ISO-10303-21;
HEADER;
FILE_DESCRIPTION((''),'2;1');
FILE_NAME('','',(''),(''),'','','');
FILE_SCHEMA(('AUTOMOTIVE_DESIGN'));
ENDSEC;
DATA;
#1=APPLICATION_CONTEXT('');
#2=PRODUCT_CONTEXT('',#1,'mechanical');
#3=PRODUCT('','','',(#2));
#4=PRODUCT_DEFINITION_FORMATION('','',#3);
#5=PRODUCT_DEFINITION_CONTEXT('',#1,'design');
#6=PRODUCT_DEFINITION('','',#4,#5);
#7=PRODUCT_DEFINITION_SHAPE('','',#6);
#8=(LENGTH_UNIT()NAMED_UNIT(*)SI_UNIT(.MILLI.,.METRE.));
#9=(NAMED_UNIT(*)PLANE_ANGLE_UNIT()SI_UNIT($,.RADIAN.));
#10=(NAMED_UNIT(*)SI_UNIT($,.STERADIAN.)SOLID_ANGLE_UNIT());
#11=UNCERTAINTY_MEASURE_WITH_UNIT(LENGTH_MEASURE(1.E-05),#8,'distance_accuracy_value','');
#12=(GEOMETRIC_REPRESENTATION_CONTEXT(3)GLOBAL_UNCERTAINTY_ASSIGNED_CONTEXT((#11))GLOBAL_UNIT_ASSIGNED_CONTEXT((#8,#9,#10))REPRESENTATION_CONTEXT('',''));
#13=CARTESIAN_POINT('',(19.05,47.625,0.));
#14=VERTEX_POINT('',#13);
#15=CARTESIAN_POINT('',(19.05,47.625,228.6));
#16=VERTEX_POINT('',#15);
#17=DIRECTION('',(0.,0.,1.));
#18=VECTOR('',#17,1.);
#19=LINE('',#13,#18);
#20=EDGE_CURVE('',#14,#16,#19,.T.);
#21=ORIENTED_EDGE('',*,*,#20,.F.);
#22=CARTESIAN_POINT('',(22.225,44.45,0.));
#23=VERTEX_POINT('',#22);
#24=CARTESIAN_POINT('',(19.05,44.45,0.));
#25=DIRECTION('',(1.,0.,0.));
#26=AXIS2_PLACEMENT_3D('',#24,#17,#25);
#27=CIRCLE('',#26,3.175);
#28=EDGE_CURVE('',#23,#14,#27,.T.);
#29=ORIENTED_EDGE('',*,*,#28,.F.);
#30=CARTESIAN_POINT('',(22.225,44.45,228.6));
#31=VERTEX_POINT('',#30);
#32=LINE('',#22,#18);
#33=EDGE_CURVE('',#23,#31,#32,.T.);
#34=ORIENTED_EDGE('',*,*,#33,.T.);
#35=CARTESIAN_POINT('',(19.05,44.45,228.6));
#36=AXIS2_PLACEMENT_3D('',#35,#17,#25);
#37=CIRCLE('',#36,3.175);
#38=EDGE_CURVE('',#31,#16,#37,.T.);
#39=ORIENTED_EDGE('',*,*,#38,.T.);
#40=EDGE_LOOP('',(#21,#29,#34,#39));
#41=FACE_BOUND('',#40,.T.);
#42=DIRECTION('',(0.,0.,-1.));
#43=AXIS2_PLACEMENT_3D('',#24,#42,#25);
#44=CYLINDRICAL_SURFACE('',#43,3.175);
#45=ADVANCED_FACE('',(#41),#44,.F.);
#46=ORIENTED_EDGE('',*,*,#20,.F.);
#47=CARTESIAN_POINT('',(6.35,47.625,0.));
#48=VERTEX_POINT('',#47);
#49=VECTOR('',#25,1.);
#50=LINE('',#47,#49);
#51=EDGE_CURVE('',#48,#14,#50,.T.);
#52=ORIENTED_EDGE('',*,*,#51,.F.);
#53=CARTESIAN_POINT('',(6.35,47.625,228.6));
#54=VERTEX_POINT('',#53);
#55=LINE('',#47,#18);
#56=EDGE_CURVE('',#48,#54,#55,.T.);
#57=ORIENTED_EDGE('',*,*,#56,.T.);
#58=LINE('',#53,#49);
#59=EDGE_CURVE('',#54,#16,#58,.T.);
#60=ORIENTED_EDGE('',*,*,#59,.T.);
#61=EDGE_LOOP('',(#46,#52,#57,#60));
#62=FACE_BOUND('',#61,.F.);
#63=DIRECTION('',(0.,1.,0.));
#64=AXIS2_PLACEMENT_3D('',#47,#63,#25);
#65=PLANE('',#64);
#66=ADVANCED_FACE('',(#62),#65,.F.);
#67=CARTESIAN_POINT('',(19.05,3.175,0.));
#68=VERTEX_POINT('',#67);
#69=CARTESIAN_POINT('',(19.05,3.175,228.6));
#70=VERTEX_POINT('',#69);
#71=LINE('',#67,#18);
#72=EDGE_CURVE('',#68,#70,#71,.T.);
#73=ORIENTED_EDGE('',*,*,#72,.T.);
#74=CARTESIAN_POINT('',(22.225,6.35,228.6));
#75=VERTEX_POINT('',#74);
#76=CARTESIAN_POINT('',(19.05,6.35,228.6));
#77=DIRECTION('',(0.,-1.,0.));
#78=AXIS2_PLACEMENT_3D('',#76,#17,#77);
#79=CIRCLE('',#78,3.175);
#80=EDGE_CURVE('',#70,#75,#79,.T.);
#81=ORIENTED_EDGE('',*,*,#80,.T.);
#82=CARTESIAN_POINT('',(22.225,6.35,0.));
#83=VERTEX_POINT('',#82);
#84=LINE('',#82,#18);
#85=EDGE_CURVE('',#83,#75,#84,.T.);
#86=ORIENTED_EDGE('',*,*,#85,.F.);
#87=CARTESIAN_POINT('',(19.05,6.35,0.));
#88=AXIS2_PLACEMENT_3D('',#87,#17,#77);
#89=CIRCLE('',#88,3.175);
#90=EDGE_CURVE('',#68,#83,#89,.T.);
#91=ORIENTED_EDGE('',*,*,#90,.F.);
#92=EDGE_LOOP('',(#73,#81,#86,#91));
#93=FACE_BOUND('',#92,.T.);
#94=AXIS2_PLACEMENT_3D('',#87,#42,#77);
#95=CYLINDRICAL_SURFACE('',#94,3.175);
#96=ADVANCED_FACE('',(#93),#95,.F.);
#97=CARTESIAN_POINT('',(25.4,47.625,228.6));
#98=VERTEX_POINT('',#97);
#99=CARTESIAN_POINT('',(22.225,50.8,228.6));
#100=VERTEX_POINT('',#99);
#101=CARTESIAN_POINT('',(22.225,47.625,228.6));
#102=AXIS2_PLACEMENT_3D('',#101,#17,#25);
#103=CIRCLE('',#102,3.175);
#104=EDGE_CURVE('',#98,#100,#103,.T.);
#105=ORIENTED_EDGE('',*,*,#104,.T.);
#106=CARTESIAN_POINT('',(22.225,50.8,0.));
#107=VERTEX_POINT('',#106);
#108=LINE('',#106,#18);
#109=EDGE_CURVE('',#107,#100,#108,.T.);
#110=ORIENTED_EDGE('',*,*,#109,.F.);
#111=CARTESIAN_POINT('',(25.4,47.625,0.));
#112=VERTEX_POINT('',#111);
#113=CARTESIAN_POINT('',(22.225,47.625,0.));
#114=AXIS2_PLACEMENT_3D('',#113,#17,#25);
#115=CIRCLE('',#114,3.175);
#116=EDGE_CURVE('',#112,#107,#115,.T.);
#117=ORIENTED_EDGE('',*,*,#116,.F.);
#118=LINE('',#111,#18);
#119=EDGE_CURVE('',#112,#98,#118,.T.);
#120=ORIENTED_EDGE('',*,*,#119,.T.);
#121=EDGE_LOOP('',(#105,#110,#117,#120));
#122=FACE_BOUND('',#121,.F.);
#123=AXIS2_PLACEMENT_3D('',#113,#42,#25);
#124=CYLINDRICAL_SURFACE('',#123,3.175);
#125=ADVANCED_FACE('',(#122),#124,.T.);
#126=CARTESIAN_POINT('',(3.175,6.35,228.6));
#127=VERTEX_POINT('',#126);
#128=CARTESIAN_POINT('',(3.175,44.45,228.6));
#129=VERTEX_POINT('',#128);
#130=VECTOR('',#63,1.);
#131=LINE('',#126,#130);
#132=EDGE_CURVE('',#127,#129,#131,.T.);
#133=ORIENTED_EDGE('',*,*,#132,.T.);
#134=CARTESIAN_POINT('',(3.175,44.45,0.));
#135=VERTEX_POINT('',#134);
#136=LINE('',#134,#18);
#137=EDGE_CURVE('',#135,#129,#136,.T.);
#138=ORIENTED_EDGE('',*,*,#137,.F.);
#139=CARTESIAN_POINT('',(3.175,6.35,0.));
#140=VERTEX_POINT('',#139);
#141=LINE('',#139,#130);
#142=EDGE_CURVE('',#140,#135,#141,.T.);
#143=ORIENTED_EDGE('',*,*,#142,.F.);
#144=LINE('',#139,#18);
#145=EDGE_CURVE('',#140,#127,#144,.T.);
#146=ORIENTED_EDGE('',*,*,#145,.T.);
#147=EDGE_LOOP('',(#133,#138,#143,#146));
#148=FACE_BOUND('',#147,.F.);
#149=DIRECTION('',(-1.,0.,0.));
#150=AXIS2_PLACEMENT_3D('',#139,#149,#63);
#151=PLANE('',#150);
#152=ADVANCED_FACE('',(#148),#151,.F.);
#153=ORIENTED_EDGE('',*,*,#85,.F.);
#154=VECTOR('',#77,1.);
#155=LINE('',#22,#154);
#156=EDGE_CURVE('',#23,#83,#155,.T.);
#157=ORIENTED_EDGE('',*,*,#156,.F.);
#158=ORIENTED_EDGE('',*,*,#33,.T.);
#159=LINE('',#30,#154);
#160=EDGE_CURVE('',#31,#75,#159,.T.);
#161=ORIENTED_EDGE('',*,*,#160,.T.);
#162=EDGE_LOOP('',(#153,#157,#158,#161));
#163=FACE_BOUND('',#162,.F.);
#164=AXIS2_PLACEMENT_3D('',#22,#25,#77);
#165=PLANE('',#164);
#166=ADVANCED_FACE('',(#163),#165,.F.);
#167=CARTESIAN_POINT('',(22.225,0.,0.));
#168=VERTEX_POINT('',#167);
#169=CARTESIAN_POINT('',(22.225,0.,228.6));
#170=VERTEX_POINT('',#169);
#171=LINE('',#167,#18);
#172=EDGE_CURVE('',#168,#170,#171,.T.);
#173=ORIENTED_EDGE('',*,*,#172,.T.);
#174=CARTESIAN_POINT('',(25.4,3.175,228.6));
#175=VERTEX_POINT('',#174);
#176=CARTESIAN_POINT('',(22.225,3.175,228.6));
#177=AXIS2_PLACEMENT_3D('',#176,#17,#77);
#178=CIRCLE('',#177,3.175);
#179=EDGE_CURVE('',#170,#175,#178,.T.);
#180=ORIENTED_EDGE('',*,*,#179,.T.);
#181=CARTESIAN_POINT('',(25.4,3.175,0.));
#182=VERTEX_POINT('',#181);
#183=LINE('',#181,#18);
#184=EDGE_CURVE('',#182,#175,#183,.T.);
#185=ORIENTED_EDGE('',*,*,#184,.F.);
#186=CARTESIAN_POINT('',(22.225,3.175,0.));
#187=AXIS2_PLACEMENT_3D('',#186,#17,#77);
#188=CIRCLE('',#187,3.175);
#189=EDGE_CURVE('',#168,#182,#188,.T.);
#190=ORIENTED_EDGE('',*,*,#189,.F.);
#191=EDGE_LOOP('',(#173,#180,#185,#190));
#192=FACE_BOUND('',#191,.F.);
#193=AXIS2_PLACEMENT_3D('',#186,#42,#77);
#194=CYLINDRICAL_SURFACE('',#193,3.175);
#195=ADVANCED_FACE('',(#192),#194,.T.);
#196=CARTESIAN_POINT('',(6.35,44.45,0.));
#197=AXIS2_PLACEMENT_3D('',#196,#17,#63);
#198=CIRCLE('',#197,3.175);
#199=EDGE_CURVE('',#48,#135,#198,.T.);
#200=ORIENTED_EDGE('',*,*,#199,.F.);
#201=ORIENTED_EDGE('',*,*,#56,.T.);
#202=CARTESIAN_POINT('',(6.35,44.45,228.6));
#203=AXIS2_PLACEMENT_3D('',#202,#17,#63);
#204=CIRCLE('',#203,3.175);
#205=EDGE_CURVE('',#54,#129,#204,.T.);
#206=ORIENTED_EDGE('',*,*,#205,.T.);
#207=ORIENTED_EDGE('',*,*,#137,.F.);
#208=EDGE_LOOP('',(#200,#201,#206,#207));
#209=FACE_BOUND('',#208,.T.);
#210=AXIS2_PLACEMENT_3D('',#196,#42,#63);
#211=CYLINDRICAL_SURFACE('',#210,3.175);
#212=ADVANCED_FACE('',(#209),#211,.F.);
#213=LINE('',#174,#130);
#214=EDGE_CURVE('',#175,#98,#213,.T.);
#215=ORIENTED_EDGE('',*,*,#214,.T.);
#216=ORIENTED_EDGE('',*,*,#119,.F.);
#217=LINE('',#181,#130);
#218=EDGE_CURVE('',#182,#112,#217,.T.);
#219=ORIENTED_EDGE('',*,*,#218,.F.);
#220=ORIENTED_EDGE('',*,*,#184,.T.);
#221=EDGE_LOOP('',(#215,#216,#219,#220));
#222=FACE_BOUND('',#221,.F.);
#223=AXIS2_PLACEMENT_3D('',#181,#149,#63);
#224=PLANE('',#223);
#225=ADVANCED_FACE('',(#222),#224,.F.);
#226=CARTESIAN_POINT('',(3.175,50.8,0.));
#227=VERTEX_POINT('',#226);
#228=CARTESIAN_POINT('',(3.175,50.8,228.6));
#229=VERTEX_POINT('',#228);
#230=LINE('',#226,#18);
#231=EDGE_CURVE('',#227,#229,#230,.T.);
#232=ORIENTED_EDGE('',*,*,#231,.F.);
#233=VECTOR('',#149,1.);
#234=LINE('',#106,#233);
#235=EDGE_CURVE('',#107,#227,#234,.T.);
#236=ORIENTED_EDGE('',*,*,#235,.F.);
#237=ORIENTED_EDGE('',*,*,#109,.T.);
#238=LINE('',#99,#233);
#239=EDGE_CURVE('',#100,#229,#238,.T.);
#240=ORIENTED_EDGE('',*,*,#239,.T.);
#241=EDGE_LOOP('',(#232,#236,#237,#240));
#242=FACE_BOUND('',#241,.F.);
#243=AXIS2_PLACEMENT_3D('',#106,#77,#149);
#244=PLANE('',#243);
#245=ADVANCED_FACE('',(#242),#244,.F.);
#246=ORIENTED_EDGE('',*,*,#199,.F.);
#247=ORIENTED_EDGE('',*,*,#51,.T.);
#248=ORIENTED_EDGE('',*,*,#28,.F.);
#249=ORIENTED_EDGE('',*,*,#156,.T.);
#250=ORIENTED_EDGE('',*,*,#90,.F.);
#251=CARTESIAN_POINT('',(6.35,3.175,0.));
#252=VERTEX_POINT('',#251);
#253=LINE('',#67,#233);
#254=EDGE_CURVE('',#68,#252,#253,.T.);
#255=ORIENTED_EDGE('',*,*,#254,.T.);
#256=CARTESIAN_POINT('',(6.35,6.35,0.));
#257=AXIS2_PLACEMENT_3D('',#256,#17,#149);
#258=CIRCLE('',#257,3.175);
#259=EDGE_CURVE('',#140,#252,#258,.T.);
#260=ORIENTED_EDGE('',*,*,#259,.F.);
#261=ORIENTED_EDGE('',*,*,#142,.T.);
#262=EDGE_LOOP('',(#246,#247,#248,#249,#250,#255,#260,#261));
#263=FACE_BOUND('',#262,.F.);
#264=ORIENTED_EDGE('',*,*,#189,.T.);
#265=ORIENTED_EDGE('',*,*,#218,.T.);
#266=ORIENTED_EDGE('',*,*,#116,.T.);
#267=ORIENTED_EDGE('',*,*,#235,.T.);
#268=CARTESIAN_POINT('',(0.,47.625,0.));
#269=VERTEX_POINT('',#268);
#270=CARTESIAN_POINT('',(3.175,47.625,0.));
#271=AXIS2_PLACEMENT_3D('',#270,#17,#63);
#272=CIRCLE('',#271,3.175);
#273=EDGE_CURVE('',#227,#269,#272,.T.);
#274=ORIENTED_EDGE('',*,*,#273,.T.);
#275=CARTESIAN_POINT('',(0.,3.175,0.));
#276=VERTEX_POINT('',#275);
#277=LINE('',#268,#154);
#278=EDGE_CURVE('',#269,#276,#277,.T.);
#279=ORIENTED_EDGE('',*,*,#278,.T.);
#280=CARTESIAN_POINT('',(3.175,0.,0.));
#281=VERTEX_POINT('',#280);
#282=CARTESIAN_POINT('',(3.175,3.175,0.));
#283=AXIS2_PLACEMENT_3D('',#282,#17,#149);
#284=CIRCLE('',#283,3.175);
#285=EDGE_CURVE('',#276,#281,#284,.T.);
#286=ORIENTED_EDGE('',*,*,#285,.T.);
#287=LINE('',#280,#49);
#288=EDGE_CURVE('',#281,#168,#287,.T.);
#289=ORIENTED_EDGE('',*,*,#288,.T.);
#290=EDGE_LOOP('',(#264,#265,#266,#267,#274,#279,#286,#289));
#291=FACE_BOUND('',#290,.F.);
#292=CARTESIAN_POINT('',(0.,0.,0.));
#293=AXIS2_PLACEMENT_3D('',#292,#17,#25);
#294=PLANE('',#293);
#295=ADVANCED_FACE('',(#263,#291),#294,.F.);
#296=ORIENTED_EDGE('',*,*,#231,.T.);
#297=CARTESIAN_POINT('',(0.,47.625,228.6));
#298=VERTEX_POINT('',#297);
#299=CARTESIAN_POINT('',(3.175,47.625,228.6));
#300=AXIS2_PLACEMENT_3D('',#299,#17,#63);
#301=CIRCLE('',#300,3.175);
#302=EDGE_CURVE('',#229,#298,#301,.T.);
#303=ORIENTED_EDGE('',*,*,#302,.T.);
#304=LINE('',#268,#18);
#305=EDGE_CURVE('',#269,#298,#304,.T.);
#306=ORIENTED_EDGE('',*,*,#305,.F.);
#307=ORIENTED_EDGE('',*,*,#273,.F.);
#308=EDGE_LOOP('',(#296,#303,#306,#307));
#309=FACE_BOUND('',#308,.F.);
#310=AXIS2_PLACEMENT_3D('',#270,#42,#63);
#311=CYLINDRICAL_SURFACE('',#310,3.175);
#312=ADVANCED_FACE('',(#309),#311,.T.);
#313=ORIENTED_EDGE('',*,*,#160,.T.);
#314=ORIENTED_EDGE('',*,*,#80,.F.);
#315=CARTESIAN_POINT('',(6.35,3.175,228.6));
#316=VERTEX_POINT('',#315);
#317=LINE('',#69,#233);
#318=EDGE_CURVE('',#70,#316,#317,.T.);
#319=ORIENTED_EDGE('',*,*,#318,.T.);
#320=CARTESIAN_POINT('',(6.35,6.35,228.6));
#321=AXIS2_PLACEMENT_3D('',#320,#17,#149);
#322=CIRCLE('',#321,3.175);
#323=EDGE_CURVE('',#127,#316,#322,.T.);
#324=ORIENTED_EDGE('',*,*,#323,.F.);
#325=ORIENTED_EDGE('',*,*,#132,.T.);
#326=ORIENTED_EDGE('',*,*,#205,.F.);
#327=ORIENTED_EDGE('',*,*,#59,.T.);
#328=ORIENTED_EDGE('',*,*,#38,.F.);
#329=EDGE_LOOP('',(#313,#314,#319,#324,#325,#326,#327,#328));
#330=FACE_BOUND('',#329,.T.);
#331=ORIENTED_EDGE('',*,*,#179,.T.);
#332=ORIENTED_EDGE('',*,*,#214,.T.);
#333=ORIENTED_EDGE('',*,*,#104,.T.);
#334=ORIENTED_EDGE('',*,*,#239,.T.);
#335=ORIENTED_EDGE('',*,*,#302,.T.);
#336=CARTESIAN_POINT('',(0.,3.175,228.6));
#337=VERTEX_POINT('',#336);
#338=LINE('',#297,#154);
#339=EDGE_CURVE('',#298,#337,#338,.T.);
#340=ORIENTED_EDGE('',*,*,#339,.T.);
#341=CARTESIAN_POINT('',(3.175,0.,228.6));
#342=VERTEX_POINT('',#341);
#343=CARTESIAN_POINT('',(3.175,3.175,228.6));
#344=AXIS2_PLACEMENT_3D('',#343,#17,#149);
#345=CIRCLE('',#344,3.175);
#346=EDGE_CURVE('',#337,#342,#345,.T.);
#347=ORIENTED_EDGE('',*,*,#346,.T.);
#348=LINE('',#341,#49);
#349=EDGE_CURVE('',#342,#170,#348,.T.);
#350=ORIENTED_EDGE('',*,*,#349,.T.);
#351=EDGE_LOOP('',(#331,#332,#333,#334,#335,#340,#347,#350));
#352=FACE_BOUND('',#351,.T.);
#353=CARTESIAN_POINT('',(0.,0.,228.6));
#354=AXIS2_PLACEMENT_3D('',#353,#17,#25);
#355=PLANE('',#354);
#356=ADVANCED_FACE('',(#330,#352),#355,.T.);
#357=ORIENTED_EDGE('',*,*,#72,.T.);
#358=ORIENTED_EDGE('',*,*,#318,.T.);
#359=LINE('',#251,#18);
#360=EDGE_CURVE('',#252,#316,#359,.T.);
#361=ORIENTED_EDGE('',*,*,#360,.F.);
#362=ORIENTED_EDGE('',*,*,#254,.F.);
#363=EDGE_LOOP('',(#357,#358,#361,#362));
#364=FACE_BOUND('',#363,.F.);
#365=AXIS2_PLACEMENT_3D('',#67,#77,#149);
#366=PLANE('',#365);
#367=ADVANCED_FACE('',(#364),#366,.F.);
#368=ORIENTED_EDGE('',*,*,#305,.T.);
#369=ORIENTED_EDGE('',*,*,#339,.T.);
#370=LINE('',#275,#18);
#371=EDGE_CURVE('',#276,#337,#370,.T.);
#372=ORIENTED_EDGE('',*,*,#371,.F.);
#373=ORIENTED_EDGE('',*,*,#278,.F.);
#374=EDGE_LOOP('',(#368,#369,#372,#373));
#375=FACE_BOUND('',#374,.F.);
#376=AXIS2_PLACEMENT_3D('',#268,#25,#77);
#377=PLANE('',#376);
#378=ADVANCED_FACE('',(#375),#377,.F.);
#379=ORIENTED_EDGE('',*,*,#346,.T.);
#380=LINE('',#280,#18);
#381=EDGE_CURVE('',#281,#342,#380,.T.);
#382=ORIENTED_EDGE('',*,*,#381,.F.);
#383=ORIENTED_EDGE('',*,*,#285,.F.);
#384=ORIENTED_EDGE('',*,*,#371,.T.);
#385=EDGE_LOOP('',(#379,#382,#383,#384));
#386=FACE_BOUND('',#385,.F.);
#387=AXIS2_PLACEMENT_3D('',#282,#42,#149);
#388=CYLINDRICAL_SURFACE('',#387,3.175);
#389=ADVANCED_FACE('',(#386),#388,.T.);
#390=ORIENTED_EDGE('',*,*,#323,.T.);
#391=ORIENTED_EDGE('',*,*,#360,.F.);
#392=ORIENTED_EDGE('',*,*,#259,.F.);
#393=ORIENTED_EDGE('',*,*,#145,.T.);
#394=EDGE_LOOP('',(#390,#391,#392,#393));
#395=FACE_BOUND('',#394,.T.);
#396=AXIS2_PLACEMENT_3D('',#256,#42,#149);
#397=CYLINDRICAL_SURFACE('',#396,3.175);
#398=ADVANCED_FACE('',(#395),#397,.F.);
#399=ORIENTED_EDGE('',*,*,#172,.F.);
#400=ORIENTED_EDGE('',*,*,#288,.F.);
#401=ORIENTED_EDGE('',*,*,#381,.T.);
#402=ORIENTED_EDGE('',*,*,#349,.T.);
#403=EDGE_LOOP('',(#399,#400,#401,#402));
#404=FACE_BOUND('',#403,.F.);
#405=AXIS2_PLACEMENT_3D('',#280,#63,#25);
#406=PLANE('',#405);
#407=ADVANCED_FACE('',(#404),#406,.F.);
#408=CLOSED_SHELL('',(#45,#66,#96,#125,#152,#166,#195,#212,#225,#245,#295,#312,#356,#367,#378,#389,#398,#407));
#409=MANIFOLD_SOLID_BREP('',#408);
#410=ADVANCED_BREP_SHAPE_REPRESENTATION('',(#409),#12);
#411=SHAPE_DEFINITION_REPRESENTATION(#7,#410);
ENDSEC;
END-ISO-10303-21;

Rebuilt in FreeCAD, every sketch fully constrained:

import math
import FreeCAD as App
import Part
import Sketcher
Q = App.Units.Quantity

doc = App.newDocument("Part")
body = doc.addObject("PartDesign::Body", "Body")

sketch1 = body.newObject("Sketcher::SketchObject", "Sketch")
sketch1.AttachmentSupport = (doc.getObject("XY_Plane"), [""])
sketch1.MapMode = "FlatFace"
sketch1.addGeometry(Part.ArcOfCircle(Part.Circle(App.Vector(3.175, 3.175, 0), App.Vector(0, 0, 1), 3.175), math.radians(180), math.radians(270)), False)
sketch1.addGeometry(Part.LineSegment(App.Vector(3.175, 0, 0), App.Vector(22.225, 0, 0)), False)
sketch1.addGeometry(Part.ArcOfCircle(Part.Circle(App.Vector(22.225, 3.175, 0), App.Vector(0, 0, 1), 3.175), math.radians(-90), math.radians(0)), False)
sketch1.addGeometry(Part.LineSegment(App.Vector(25.4, 3.175, 0), App.Vector(25.4, 47.625, 0)), False)
sketch1.addGeometry(Part.ArcOfCircle(Part.Circle(App.Vector(22.225, 47.625, 0), App.Vector(0, 0, 1), 3.175), math.radians(0), math.radians(90)), False)
sketch1.addGeometry(Part.LineSegment(App.Vector(22.225, 50.8, 0), App.Vector(3.175, 50.8, 0)), False)
sketch1.addGeometry(Part.ArcOfCircle(Part.Circle(App.Vector(3.175, 47.625, 0), App.Vector(0, 0, 1), 3.175), math.radians(90), math.radians(180)), False)
sketch1.addGeometry(Part.LineSegment(App.Vector(0, 47.625, 0), App.Vector(0, 3.175, 0)), False)
sketch1.addGeometry(Part.ArcOfCircle(Part.Circle(App.Vector(6.35, 44.45, 0), App.Vector(0, 0, 1), 3.175), math.radians(90), math.radians(180)), False)
sketch1.addGeometry(Part.LineSegment(App.Vector(6.35, 47.625, 0), App.Vector(19.05, 47.625, 0)), False)
sketch1.addGeometry(Part.ArcOfCircle(Part.Circle(App.Vector(19.05, 44.45, 0), App.Vector(0, 0, 1), 3.175), math.radians(0), math.radians(90)), False)
sketch1.addGeometry(Part.LineSegment(App.Vector(22.225, 44.45, 0), App.Vector(22.225, 6.35, 0)), False)
sketch1.addGeometry(Part.ArcOfCircle(Part.Circle(App.Vector(19.05, 6.35, 0), App.Vector(0, 0, 1), 3.175), math.radians(-90), math.radians(0)), False)
sketch1.addGeometry(Part.LineSegment(App.Vector(19.05, 3.175, 0), App.Vector(6.35, 3.175, 0)), False)
sketch1.addGeometry(Part.ArcOfCircle(Part.Circle(App.Vector(6.35, 6.35, 0), App.Vector(0, 0, 1), 3.175), math.radians(180), math.radians(270)), False)
sketch1.addGeometry(Part.LineSegment(App.Vector(3.175, 6.35, 0), App.Vector(3.175, 44.45, 0)), False)
sketch1.addConstraint(Sketcher.Constraint("Tangent", 0, 2, 1, 1))
sketch1.addConstraint(Sketcher.Constraint("Tangent", 1, 2, 2, 1))
sketch1.addConstraint(Sketcher.Constraint("Tangent", 2, 2, 3, 1))
sketch1.addConstraint(Sketcher.Constraint("Tangent", 3, 2, 4, 1))
sketch1.addConstraint(Sketcher.Constraint("Tangent", 4, 2, 5, 1))
sketch1.addConstraint(Sketcher.Constraint("Tangent", 5, 2, 6, 1))
sketch1.addConstraint(Sketcher.Constraint("Tangent", 6, 2, 7, 1))
sketch1.addConstraint(Sketcher.Constraint("Tangent", 7, 2, 0, 1))
sketch1.addConstraint(Sketcher.Constraint("Tangent", 8, 1, 9, 1))
sketch1.addConstraint(Sketcher.Constraint("Tangent", 9, 2, 10, 2))
sketch1.addConstraint(Sketcher.Constraint("Tangent", 10, 1, 11, 1))
sketch1.addConstraint(Sketcher.Constraint("Tangent", 11, 2, 12, 2))
sketch1.addConstraint(Sketcher.Constraint("Tangent", 12, 1, 13, 1))
sketch1.addConstraint(Sketcher.Constraint("Tangent", 13, 2, 14, 2))
sketch1.addConstraint(Sketcher.Constraint("Tangent", 14, 1, 15, 1))
sketch1.addConstraint(Sketcher.Constraint("Tangent", 15, 2, 8, 2))
sketch1.addConstraint(Sketcher.Constraint("Horizontal", 1))
sketch1.addConstraint(Sketcher.Constraint("Vertical", 3))
sketch1.addConstraint(Sketcher.Constraint("Horizontal", 5))
sketch1.addConstraint(Sketcher.Constraint("Vertical", 7))
sketch1.addConstraint(Sketcher.Constraint("Horizontal", 9))
sketch1.addConstraint(Sketcher.Constraint("Vertical", 11))
sketch1.addConstraint(Sketcher.Constraint("Horizontal", 13))
sketch1.addConstraint(Sketcher.Constraint("Vertical", 15))
sketch1.addConstraint(Sketcher.Constraint("Equal", 0, 2))
sketch1.addConstraint(Sketcher.Constraint("Equal", 2, 4))
sketch1.addConstraint(Sketcher.Constraint("Equal", 4, 6))
sketch1.addConstraint(Sketcher.Constraint("Equal", 6, 8))
sketch1.addConstraint(Sketcher.Constraint("Equal", 8, 10))
sketch1.addConstraint(Sketcher.Constraint("Equal", 10, 12))
sketch1.addConstraint(Sketcher.Constraint("Equal", 12, 14))
sketch1.addConstraint(Sketcher.Constraint("PointOnObject", 0, 2, -1))
sketch1.addConstraint(Sketcher.Constraint("PointOnObject", 6, 2, -2))
sketch1.addConstraint(Sketcher.Constraint("Horizontal", 6, 2, 8, 1))
sketch1.addConstraint(Sketcher.Constraint("Horizontal", 7, 2, 12, 1))
sketch1.addConstraint(Sketcher.Constraint("Vertical", 4, 2, 10, 1))
sketch1.addConstraint(Sketcher.Constraint("Vertical", 5, 2, 14, 1))
sketch1.addConstraint(Sketcher.Constraint("DistanceX", -1, 1, 2, 2, Q("1 in")))
sketch1.addConstraint(Sketcher.Constraint("DistanceY", -1, 1, 4, 2, Q("2 in")))
sketch1.addConstraint(Sketcher.Constraint("Radius", 0, Q("0.125 in")))
pad1 = body.newObject("PartDesign::Pad", "Pad")
pad1.Profile = sketch1
pad1.Length = Q("9 in")

doc.recompute()
